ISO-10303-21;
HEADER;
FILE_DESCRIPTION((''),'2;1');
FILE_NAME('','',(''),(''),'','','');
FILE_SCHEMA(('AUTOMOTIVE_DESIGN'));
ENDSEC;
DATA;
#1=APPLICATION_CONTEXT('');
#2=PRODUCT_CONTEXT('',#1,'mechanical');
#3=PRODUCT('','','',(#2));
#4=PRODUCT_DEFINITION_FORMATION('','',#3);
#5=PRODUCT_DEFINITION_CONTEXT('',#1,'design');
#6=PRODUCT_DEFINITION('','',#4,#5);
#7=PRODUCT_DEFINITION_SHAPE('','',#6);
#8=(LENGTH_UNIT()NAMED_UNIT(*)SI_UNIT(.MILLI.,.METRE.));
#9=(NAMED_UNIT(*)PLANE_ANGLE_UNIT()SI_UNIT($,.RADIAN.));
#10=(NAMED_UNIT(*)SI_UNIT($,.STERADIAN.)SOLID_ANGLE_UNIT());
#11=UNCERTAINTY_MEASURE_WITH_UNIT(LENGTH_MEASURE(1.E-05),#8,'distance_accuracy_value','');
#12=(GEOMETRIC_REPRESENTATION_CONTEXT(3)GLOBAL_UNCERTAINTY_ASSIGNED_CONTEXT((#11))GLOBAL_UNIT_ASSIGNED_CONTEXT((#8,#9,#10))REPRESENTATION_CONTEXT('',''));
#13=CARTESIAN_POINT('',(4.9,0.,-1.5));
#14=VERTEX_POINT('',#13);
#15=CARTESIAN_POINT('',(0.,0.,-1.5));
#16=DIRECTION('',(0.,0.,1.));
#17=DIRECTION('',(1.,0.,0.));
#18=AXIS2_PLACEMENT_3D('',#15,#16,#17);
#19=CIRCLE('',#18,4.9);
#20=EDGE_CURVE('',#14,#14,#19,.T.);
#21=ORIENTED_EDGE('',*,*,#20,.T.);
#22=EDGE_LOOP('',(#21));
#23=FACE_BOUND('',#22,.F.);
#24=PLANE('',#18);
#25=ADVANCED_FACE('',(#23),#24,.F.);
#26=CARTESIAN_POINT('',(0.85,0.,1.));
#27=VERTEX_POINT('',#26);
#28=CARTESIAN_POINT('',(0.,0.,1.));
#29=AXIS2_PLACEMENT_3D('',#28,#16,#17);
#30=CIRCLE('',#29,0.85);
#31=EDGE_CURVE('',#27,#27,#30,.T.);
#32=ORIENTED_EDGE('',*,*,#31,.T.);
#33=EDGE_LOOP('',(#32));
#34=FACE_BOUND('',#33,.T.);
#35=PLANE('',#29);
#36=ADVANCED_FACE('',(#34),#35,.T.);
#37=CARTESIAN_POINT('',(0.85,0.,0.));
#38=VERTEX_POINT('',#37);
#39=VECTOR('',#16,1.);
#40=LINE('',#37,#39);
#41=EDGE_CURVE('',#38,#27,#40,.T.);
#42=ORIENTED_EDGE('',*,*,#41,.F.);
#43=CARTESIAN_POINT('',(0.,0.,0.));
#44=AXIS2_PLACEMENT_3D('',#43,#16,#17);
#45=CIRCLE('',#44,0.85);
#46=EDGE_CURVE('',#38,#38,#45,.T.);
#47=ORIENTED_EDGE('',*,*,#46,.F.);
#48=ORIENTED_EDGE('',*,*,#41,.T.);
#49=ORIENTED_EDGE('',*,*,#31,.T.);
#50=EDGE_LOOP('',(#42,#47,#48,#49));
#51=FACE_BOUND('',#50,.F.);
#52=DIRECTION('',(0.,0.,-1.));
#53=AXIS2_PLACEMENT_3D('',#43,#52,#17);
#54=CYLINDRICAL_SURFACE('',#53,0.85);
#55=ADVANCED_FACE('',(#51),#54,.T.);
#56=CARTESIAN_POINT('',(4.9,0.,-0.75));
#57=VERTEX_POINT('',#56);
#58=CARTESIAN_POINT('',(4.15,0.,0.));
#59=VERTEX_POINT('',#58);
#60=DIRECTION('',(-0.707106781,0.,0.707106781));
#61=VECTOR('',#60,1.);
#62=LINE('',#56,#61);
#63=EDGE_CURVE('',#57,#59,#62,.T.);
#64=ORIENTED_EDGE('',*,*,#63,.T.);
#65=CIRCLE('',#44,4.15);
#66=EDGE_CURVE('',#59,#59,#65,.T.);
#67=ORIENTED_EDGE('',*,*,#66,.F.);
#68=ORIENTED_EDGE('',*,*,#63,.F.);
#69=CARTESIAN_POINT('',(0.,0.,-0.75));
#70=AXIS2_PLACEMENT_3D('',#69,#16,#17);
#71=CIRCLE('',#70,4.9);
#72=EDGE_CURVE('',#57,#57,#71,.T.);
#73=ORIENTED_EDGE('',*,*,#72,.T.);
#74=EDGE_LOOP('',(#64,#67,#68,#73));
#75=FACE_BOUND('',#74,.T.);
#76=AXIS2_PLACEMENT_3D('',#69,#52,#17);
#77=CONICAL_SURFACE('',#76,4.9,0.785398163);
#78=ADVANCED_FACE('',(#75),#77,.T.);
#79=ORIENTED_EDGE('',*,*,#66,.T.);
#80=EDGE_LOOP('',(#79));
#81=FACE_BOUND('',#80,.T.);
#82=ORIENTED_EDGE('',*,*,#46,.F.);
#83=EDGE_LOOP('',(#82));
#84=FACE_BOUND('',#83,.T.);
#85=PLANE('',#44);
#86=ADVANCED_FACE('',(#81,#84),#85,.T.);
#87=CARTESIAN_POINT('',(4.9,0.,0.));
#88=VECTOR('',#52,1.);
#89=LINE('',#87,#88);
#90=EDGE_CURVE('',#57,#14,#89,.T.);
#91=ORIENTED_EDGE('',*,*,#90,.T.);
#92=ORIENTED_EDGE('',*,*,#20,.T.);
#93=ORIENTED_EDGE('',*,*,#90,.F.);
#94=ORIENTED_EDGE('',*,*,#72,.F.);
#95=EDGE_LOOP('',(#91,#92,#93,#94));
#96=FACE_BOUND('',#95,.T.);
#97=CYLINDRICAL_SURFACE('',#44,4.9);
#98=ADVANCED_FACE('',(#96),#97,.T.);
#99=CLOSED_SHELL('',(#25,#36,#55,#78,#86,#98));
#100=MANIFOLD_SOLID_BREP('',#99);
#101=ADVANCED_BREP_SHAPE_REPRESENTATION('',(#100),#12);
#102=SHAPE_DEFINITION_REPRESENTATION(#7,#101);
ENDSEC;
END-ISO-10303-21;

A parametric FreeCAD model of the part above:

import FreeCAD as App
import Part
import Sketcher
from FreeCAD import Vector


def edges_at(feature, points):
    """Names of the edges that pass closest to the given points."""
    edges = feature.Shape.Edges
    near = lambda p: min(range(len(edges)), key=lambda i: edges[i].distToShape(Part.Vertex(*p))[0])
    return sorted({f"Edge{near(p) + 1}" for p in points})

doc = App.newDocument("Part")
params = doc.addObject("Spreadsheet::Sheet", "Params")
for row, (alias, value) in enumerate([
    ("sketch1_diameter", "1.7 mm"),
    ("pad1_length", "1 mm"),
    ("sketch2_diameter", "9.8 mm"),
    ("pad2_length", "1.5 mm"),
    ("chamfer_size", "0.75 mm"),
], start=1):
    params.set(f"A{row}", alias)
    params.set(f"B{row}", "=" + value)
    params.setAlias(f"B{row}", alias)

body = doc.addObject("PartDesign::Body", "Body")

# Sketch on XY plane
sketch1 = doc.addObject("Sketcher::SketchObject", "Sketch")
body.addObject(sketch1)
sketch1.AttachmentSupport = (doc.XY_Plane, [""])
sketch1.MapMode = "FlatFace"
sketch1.addGeometry(Part.Circle(Vector(0, 0, 0), Vector(0, 0, 1), 0.8), False)
sketch1.addConstraint([
    Sketcher.Constraint("Coincident", 0, 3, -1, 1),
    Sketcher.Constraint("Diameter", 0, 1.7),
])
sketch1.setExpression("Constraints[1]", "Params.sketch1_diameter")
pad1 = doc.addObject("PartDesign::Pad", "Pad")
body.addObject(pad1)
pad1.Profile = sketch1
pad1.setExpression("Length", "Params.pad1_length")

# Sketch on XY plane
sketch2 = doc.addObject("Sketcher::SketchObject", "Sketch001")
body.addObject(sketch2)
sketch2.AttachmentSupport = (doc.XY_Plane, [""])
sketch2.MapMode = "FlatFace"
sketch2.addGeometry(Part.Circle(Vector(0, 0, 0), Vector(0, 0, 1), 4.9), False)
sketch2.addConstraint([
    Sketcher.Constraint("Coincident", 0, 3, -1, 1),
    Sketcher.Constraint("Diameter", 0, 9.8),
])
sketch2.setExpression("Constraints[1]", "Params.sketch2_diameter")
pad2 = doc.addObject("PartDesign::Pad", "Pad001")
body.addObject(pad2)
pad2.Profile = sketch2
pad2.setExpression("Length", "Params.pad2_length")
pad2.Reversed = True
doc.recompute()

chamfer = doc.addObject("PartDesign::Chamfer", "Chamfer")
body.addObject(chamfer)
chamfer.Base = (pad2, edges_at(pad2, [(-4.9, 0, 0)]))
chamfer.setExpression("Size", "Params.chamfer_size")

doc.recompute()
